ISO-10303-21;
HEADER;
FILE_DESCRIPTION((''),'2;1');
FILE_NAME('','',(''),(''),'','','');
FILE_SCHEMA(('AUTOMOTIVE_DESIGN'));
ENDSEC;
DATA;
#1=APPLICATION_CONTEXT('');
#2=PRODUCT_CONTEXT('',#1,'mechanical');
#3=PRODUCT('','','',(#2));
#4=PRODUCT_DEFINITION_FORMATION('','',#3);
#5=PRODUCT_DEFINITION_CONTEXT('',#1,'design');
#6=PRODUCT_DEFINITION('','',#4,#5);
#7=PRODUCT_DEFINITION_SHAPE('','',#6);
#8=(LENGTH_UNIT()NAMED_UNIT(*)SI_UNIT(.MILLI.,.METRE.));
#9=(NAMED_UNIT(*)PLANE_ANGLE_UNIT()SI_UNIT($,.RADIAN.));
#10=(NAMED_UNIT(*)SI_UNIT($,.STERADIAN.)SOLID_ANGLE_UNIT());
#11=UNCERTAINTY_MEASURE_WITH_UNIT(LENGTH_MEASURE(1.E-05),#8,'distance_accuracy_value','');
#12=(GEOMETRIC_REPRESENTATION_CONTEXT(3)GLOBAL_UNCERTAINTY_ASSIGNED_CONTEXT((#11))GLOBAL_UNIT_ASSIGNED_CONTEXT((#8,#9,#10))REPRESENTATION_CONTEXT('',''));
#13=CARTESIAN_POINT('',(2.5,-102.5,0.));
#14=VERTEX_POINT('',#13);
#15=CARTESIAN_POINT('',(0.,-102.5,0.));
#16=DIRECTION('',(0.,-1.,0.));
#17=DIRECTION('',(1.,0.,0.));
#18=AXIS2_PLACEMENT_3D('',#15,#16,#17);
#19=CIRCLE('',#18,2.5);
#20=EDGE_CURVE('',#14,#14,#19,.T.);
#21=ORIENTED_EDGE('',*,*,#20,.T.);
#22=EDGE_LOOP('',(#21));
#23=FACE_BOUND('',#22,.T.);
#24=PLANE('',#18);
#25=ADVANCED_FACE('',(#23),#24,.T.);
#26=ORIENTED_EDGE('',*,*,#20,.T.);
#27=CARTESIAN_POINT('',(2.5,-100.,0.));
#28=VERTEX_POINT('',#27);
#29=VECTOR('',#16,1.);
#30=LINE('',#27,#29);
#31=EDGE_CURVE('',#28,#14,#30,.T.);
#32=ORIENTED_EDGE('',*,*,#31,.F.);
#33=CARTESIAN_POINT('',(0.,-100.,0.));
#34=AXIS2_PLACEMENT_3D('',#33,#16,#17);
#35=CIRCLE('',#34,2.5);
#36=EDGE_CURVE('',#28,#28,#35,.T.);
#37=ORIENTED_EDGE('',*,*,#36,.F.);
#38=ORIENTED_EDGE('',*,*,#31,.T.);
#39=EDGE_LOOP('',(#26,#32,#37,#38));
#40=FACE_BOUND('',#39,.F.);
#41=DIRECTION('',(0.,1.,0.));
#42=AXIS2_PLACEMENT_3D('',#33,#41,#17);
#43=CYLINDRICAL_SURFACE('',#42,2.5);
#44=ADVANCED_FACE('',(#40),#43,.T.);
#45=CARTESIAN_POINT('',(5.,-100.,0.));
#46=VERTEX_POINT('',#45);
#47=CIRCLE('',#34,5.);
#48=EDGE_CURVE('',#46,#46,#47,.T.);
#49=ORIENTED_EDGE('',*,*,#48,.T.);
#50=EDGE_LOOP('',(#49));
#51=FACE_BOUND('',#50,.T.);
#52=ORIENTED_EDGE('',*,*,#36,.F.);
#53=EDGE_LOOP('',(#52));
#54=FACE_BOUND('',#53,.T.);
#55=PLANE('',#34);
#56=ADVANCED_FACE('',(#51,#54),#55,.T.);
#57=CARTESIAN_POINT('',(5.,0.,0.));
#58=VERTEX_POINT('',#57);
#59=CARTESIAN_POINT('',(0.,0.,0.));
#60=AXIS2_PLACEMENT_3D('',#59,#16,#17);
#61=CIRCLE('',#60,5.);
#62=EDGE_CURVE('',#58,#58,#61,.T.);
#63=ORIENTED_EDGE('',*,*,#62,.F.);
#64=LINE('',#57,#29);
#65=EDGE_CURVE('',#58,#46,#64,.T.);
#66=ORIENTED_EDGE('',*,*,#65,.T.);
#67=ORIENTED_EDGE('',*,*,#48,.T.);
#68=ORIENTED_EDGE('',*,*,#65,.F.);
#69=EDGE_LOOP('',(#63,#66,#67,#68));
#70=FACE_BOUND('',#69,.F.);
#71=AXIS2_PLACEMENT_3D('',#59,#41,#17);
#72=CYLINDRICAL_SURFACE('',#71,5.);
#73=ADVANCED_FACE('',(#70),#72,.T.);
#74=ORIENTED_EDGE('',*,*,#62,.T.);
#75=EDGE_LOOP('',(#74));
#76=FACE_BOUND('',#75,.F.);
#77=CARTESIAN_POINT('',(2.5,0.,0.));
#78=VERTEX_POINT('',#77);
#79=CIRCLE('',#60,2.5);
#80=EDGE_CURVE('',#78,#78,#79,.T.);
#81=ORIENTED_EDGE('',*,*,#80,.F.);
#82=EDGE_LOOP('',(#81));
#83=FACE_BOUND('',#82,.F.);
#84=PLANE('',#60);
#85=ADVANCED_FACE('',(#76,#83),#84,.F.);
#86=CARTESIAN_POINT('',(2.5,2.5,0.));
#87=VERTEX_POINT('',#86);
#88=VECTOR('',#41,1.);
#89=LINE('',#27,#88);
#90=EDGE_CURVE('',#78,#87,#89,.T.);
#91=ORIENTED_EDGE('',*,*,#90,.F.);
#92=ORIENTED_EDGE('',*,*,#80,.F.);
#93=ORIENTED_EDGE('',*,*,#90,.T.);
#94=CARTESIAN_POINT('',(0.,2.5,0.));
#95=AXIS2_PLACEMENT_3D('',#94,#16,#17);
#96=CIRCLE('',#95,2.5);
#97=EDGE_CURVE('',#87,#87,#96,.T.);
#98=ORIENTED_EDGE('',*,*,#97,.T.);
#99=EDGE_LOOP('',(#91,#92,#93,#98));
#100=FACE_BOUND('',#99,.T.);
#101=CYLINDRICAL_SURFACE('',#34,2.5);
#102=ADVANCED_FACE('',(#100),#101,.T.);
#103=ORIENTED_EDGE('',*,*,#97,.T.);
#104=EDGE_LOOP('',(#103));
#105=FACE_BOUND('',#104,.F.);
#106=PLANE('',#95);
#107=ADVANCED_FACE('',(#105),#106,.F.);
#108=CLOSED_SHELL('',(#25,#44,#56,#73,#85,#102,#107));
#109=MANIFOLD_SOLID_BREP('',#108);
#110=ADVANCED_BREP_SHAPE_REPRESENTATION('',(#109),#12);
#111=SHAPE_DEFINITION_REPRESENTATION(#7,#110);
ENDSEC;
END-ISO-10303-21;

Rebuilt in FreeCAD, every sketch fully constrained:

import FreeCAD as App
import Part
import Sketcher

doc = App.newDocument("Part")
body = doc.addObject("PartDesign::Body", "Body")

# Sketch on XZ plane
sketch1 = doc.addObject("Sketcher::SketchObject", "Sketch")
body.addObject(sketch1)
sketch1.AttachmentSupport = (doc.XZ_Plane, [""])
sketch1.MapMode = "FlatFace"
sketch1.addGeometry(Part.Circle(App.Vector(0, 0, 0), App.Vector(0, 0, 1), 5), False)
sketch1.addConstraint([
    Sketcher.Constraint("Coincident", 0, 3, -1, 1),
    Sketcher.Constraint("Diameter", 0, 10.0),
])
pad1 = doc.addObject("PartDesign::Pad", "Pad")
body.addObject(pad1)
pad1.Profile = sketch1
pad1.Length = 100

# Sketch on XZ plane
sketch2 = doc.addObject("Sketcher::SketchObject", "Sketch001")
body.addObject(sketch2)
sketch2.AttachmentSupport = (doc.XZ_Plane, [""])
sketch2.MapMode = "FlatFace"
sketch2.AttachmentOffset = App.Placement(App.Vector(0, 0, 100), App.Rotation())
sketch2.addGeometry(Part.Circle(App.Vector(0, 0, 0), App.Vector(0, 0, 1), 2.5), False)
sketch2.addConstraint([
    Sketcher.Constraint("Coincident", 0, 3, -1, 1),
    Sketcher.Constraint("Diameter", 0, 5.0),
])
pad2 = doc.addObject("PartDesign::Pad", "Pad001")
body.addObject(pad2)
pad2.Profile = sketch2
pad2.Type = "TwoLengths"
pad2.Length = 2.5
pad2.Length2 = 102.5

doc.recompute()
